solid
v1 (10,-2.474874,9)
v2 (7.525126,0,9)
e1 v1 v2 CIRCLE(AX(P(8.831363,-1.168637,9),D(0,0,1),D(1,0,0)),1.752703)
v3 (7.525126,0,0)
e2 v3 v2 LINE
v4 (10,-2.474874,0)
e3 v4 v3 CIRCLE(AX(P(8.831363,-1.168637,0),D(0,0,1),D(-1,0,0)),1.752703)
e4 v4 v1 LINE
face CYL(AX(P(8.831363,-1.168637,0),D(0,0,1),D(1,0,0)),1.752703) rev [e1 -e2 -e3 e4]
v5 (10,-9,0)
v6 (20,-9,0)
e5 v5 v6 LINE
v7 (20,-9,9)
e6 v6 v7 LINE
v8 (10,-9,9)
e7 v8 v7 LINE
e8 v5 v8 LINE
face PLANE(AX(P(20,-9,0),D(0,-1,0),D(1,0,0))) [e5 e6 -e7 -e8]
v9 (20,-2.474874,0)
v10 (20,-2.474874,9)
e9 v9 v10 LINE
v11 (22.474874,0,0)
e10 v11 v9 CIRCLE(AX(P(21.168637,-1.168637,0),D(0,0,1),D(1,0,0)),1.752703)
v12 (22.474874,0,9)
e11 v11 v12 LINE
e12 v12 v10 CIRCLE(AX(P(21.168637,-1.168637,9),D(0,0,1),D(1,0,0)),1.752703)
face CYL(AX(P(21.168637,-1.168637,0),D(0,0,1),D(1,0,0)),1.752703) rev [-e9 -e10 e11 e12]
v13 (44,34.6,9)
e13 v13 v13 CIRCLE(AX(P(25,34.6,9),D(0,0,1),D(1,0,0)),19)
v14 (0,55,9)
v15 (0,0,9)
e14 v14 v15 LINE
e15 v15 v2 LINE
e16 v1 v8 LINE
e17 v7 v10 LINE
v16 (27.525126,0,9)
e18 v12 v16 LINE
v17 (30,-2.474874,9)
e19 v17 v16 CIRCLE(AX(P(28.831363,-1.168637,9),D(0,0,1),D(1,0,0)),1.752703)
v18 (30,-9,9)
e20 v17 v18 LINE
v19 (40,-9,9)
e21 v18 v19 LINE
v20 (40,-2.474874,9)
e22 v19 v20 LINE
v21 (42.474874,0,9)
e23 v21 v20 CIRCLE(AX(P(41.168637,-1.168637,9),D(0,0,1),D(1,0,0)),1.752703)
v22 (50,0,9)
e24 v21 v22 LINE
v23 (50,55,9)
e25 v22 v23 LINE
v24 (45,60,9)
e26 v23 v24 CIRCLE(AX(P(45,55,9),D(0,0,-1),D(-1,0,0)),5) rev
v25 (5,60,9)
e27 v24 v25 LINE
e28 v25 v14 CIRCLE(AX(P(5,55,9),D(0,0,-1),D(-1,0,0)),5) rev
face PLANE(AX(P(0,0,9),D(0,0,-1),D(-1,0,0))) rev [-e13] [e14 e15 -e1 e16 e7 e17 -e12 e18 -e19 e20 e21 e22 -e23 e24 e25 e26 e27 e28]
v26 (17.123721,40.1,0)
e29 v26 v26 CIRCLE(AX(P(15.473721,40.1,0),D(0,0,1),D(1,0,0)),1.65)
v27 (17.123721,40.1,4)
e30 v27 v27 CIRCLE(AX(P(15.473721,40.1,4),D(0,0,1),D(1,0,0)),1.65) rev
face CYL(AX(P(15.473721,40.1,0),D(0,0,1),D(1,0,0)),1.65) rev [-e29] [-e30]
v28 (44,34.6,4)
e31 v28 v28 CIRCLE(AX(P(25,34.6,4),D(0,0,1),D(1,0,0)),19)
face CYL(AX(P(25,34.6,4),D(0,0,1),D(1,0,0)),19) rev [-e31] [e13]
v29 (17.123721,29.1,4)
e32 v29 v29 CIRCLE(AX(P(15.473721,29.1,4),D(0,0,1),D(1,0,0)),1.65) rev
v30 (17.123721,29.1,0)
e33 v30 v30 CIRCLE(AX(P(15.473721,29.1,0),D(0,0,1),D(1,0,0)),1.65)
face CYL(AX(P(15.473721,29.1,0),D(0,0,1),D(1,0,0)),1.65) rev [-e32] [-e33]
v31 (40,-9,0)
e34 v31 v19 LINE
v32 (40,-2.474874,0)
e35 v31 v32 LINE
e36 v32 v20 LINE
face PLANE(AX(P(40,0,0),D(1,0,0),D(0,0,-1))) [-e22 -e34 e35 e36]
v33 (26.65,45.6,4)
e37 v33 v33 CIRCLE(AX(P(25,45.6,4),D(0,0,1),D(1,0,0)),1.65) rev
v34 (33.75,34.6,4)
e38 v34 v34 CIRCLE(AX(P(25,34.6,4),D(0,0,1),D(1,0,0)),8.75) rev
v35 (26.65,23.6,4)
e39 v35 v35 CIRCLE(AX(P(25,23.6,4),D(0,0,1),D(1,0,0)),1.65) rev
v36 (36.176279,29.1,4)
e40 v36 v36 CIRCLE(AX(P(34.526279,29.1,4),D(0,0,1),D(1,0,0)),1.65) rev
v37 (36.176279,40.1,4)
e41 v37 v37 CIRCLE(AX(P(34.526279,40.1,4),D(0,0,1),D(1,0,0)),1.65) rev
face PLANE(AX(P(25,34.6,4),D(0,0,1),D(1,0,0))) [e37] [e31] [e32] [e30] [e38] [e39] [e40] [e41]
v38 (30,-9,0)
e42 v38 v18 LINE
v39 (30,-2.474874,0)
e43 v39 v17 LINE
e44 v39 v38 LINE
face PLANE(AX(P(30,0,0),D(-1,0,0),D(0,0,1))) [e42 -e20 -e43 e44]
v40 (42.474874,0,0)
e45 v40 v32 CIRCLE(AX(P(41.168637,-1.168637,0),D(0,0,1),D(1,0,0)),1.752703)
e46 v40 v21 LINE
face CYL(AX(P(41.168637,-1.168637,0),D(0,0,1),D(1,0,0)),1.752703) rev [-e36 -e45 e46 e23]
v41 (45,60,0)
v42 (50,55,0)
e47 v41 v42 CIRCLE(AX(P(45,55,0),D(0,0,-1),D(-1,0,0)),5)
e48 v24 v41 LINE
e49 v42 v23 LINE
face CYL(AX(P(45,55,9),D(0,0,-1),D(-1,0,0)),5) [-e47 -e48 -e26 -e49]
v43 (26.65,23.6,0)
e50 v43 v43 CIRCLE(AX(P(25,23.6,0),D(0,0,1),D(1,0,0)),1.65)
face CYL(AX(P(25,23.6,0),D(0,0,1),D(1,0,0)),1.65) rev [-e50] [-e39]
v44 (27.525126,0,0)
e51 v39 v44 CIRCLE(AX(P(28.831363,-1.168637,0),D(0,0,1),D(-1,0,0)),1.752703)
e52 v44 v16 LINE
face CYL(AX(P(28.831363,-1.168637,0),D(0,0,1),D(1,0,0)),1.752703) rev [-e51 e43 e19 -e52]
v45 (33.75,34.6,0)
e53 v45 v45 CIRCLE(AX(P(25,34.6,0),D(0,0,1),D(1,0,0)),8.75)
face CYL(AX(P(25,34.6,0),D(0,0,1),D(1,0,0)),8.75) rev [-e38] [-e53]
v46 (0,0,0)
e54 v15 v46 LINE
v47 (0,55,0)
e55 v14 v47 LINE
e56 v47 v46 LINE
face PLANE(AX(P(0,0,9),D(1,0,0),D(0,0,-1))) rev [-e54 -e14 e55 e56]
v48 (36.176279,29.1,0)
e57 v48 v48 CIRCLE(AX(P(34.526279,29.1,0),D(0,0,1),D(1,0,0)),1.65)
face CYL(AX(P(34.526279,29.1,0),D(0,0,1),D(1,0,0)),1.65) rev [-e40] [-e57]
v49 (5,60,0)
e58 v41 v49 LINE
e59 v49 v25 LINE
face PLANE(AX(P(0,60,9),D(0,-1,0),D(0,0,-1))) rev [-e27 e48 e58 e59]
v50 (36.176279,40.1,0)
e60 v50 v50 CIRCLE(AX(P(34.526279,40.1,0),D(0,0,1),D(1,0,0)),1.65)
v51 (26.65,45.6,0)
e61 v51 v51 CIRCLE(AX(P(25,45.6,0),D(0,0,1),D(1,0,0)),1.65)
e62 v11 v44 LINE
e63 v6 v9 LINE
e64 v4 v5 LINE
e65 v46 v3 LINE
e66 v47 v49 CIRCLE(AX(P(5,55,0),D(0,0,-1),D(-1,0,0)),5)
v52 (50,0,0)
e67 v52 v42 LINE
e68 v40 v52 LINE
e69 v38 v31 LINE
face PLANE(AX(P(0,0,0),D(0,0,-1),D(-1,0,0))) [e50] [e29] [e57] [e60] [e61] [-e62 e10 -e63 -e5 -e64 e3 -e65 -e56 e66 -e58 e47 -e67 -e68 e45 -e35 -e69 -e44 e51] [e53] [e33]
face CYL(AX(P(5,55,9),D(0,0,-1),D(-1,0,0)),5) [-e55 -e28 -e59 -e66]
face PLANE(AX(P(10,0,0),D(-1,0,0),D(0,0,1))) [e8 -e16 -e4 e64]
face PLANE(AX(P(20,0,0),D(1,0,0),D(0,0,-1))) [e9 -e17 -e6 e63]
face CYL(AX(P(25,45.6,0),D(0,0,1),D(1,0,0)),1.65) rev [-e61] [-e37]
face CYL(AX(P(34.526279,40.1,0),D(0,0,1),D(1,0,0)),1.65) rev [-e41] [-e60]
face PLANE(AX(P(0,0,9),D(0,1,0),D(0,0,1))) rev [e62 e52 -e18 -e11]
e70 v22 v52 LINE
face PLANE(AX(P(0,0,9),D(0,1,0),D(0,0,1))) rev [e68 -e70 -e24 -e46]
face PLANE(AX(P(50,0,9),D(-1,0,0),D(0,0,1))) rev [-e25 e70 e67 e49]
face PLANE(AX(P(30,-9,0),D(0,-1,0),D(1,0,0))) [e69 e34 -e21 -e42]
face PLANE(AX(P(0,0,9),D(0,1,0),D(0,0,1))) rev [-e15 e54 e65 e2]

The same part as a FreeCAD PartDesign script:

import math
import FreeCAD as App
import Part
import Sketcher

V = App.Vector
Q = App.Units.Quantity


def edges_at(feature, points):
    """Names of the edges that pass closest to the given points."""
    edges = feature.Shape.Edges
    near = lambda p: min(range(len(edges)), key=lambda i: edges[i].distToShape(Part.Vertex(*p))[0])
    return sorted({f"Edge{near(p) + 1}" for p in points})

doc = App.newDocument("Part")
body = doc.addObject("PartDesign::Body", "Body")

# Sketch on XY plane
sketch1 = doc.addObject("Sketcher::SketchObject", "Sketch")
body.addObject(sketch1)
sketch1.AttachmentSupport = (doc.XY_Plane, [""])
sketch1.MapMode = "FlatFace"
sketch1.addGeometry(Part.LineSegment(V(0, 60, 0), V(0, 0, 0)), False)
sketch1.addGeometry(Part.LineSegment(V(0, 0, 0), V(50, 0, 0)), False)
sketch1.addGeometry(Part.LineSegment(V(50, 0, 0), V(50, 60, 0)), False)
sketch1.addGeometry(Part.LineSegment(V(50, 60, 0), V(0, 60, 0)), False)
sketch1.addConstraint(Sketcher.Constraint("Coincident", 0, 2, 1, 1))
sketch1.addConstraint(Sketcher.Constraint("Coincident", 1, 2, 2, 1))
sketch1.addConstraint(Sketcher.Constraint("Coincident", 2, 2, 3, 1))
sketch1.addConstraint(Sketcher.Constraint("Coincident", 3, 2, 0, 1))
sketch1.addConstraint(Sketcher.Constraint("Vertical", 0))
sketch1.addConstraint(Sketcher.Constraint("Horizontal", 1))
sketch1.addConstraint(Sketcher.Constraint("Vertical", 2))
sketch1.addConstraint(Sketcher.Constraint("Horizontal", 3))
sketch1.addConstraint(Sketcher.Constraint("Coincident", 0, 2, -1, 1))
sketch1.addConstraint(Sketcher.Constraint("DistanceX", 1, 1, 1, 2, Q("50 mm")))
sketch1.addConstraint(Sketcher.Constraint("DistanceY", 0, 2, 0, 1, Q("60 mm")))
pad1 = doc.addObject("PartDesign::Pad", "Pad")
body.addObject(pad1)
pad1.Profile = sketch1
pad1.Length = 9

# Sketch on XY plane
sketch2 = doc.addObject("Sketcher::SketchObject", "Sketch001")
body.addObject(sketch2)
sketch2.AttachmentSupport = (doc.XY_Plane, [""])
sketch2.MapMode = "FlatFace"
sketch2.AttachmentOffset = App.Placement(V(0, 0, 9), App.Rotation())
sketch2.addGeometry(Part.LineSegment(V(30, 0, 0), V(30, -9, 0)), False)
sketch2.addGeometry(Part.LineSegment(V(30, -9, 0), V(40, -9, 0)), False)
sketch2.addGeometry(Part.LineSegment(V(40, -9, 0), V(40, 0, 0)), False)
sketch2.addGeometry(Part.LineSegment(V(40, 0, 0), V(30, 0, 0)), False)
sketch2.addGeometry(Part.LineSegment(V(10, 0, 0), V(10, -9, 0)), False)
sketch2.addGeometry(Part.LineSegment(V(10, -9, 0), V(20, -9, 0)), False)
sketch2.addGeometry(Part.LineSegment(V(20, -9, 0), V(20, 0, 0)), False)
sketch2.addGeometry(Part.LineSegment(V(20, 0, 0), V(10, 0, 0)), False)
sketch2.addConstraint(Sketcher.Constraint("Coincident", 0, 2, 1, 1))
sketch2.addConstraint(Sketcher.Constraint("Coincident", 1, 2, 2, 1))
sketch2.addConstraint(Sketcher.Constraint("Coincident", 2, 2, 3, 1))
sketch2.addConstraint(Sketcher.Constraint("Coincident", 3, 2, 0, 1))
sketch2.addConstraint(Sketcher.Constraint("Coincident", 4, 2, 5, 1))
sketch2.addConstraint(Sketcher.Constraint("Coincident", 5, 2, 6, 1))
sketch2.addConstraint(Sketcher.Constraint("Coincident", 6, 2, 7, 1))
sketch2.addConstraint(Sketcher.Constraint("Coincident", 7, 2, 4, 1))
sketch2.addConstraint(Sketcher.Constraint("Vertical", 0))
sketch2.addConstraint(Sketcher.Constraint("Horizontal", 1))
sketch2.addConstraint(Sketcher.Constraint("Vertical", 2))
sketch2.addConstraint(Sketcher.Constraint("Horizontal", 3))
sketch2.addConstraint(Sketcher.Constraint("Vertical", 4))
sketch2.addConstraint(Sketcher.Constraint("Horizontal", 5))
sketch2.addConstraint(Sketcher.Constraint("Vertical", 6))
sketch2.addConstraint(Sketcher.Constraint("Horizontal", 7))
sketch2.addConstraint(Sketcher.Constraint("PointOnObject", 2, 2, -1))
sketch2.addConstraint(Sketcher.Constraint("PointOnObject", 6, 2, -1))
sketch2.addConstraint(Sketcher.Constraint("Horizontal", 1, 2, 4, 2))
sketch2.addConstraint(Sketcher.Constraint("Equal", 3, 5))
sketch2.addConstraint(Sketcher.Constraint("DistanceX", 1, 1, 1, 2, Q("10 mm")))
sketch2.addConstraint(Sketcher.Constraint("DistanceY", 0, 2, 0, 1, Q("9 mm")))
sketch2.addConstraint(Sketcher.Constraint("DistanceX", -1, 1, 0, 2, Q("30 mm")))
sketch2.addConstraint(Sketcher.Constraint("DistanceX", -1, 1, 4, 2, Q("10 mm")))
pad2 = doc.addObject("PartDesign::Pad", "Pad001")
body.addObject(pad2)
pad2.Profile = sketch2
pad2.Length = 9
pad2.Reversed = True

# Sketch on XY plane
sketch3 = doc.addObject("Sketcher::SketchObject", "Sketch002")
body.addObject(sketch3)
sketch3.AttachmentSupport = (doc.XY_Plane, [""])
sketch3.MapMode = "FlatFace"
sketch3.AttachmentOffset = App.Placement(V(0, 0, 9), App.Rotation())
sketch3.addGeometry(Part.Circle(V(25, 34.6, 0), V(0, 0, 1), 8.8), False)
sketch3.addGeometry(Part.Circle(V(25, 45.6, 0), V(0, 0, 1), 1.6), False)
sketch3.addGeometry(Part.Circle(V(34.5, 40.1, 0), V(0, 0, 1), 1.6), False)
sketch3.addGeometry(Part.Circle(V(34.5, 29.1, 0), V(0, 0, 1), 1.6), False)
sketch3.addGeometry(Part.Circle(V(25, 23.6, 0), V(0, 0, 1), 1.6), False)
sketch3.addGeometry(Part.Circle(V(15.5, 29.1, 0), V(0, 0, 1), 1.6), False)
sketch3.addGeometry(Part.Circle(V(15.5, 40.1, 0), V(0, 0, 1), 1.6), False)
sketch3.addConstraint(Sketcher.Constraint("Equal", 1, 2))
sketch3.addConstraint(Sketcher.Constraint("Equal", 2, 3))
sketch3.addConstraint(Sketcher.Constraint("Equal", 3, 4))
sketch3.addConstraint(Sketcher.Constraint("Equal", 4, 5))
sketch3.addConstraint(Sketcher.Constraint("Equal", 5, 6))
sketch3.addConstraint(Sketcher.Constraint("Horizontal", 3, 3, 5, 3))
sketch3.addConstraint(Sketcher.Constraint("Horizontal", 2, 3, 6, 3))
sketch3.addConstraint(Sketcher.Constraint("Vertical", 0, 3, 1, 3))
sketch3.addConstraint(Sketcher.Constraint("Vertical", 2, 3, 3, 3))
sketch3.addConstraint(Sketcher.Constraint("Vertical", 1, 3, 4, 3))
sketch3.addConstraint(Sketcher.Constraint("Vertical", 5, 3, 6, 3))
sketch3.addConstraint(Sketcher.Constraint("Diameter", 0, Q("17.5 mm")))
sketch3.addConstraint(Sketcher.Constraint("Diameter", 1, Q("3.3 mm")))
sketch3.addConstraint(Sketcher.Constraint("DistanceX", -1, 1, 0, 3, Q("25 mm")))
sketch3.addConstraint(Sketcher.Constraint("DistanceY", 0, 3, 1, 3, Q("11 mm")))
sketch3.addConstraint(Sketcher.Constraint("DistanceY", 3, 3, 2, 3, Q("11 mm")))
sketch3.addConstraint(Sketcher.Constraint("DistanceY", 4, 3, 0, 3, Q("11 mm")))
sketch3.addConstraint(Sketcher.Constraint("DistanceY", -1, 1, 0, 3, Q("34.6 mm")))
sketch3.addConstraint(Sketcher.Constraint("DistanceY", -1, 1, 2, 3, Q("40.1 mm")))
sketch3.addConstraint(Sketcher.Constraint("DistanceX", -1, 1, 2, 3, Q("34.526279 mm")))
sketch3.addConstraint(Sketcher.Constraint("DistanceX", -1, 1, 5, 3, Q("15.473721 mm")))
pocket1 = doc.addObject("PartDesign::Pocket", "Pocket")
body.addObject(pocket1)
pocket1.Profile = sketch3
pocket1.Length = 9

# Sketch on XY plane
sketch4 = doc.addObject("Sketcher::SketchObject", "Sketch003")
body.addObject(sketch4)
sketch4.AttachmentSupport = (doc.XY_Plane, [""])
sketch4.MapMode = "FlatFace"
sketch4.AttachmentOffset = App.Placement(V(0, 0, 9), App.Rotation())
sketch4.addGeometry(Part.Circle(V(25, 35, 0), V(0, 0, 1), 19), False)
sketch4.addConstraint(Sketcher.Constraint("Diameter", 0, Q("38 mm")))
sketch4.addConstraint(Sketcher.Constraint("DistanceX", -1, 1, 0, 3, Q("25 mm")))
sketch4.addConstraint(Sketcher.Constraint("DistanceY", -1, 1, 0, 3, Q("34.6 mm")))
pocket2 = doc.addObject("PartDesign::Pocket", "Pocket001")
body.addObject(pocket2)
pocket2.Profile = sketch4
pocket2.Length = 5
doc.recompute()

fillet = doc.addObject("PartDesign::Fillet", "Fillet")
body.addObject(fillet)
fillet.Base = (pocket2, edges_at(pocket2, [(0, 60, 4.5), (50, 60, 4.5)]))
fillet.Radius = 5

# Sketch on XY plane
sketch5 = doc.addObject("Sketcher::SketchObject", "Sketch004")
body.addObject(sketch5)
sketch5.AttachmentSupport = (doc.XY_Plane, [""])
sketch5.MapMode = "FlatFace"
sketch5.AttachmentOffset = App.Placement(V(0, 0, 9), App.Rotation())
sketch5.addGeometry(Part.LineSegment(V(27.5, 0, 0), V(30, -2.5, 0)), False)
sketch5.addGeometry(Part.ArcOfCircle(Part.Circle(V(28.8, -1.2, 0), V(0, 0, 1), 1.8), math.radians(-48), math.radians(138)), False)
sketch5.addGeometry(Part.LineSegment(V(20, -2.5, 0), V(22.5, 0, 0)), False)
sketch5.addGeometry(Part.ArcOfCircle(Part.Circle(V(21.2, -1.2, 0), V(0, 0, 1), 1.8), math.radians(42), math.radians(228)), False)
sketch5.addGeometry(Part.LineSegment(V(40, -2.5, 0), V(42.5, 0, 0)), False)
sketch5.addGeometry(Part.ArcOfCircle(Part.Circle(V(41.2, -1.2, 0), V(0, 0, 1), 1.8), math.radians(42), math.radians(228)), False)
sketch5.addGeometry(Part.LineSegment(V(7.5, 0, 0), V(10, -2.5, 0)), False)
sketch5.addGeometry(Part.ArcOfCircle(Part.Circle(V(8.8, -1.2, 0), V(0, 0, 1), 1.8), math.radians(-48), math.radians(138)), False)
sketch5.addConstraint(Sketcher.Constraint("Coincident", 0, 1, 1, 2))
sketch5.addConstraint(Sketcher.Constraint("Coincident", 1, 1, 0, 2))
sketch5.addConstraint(Sketcher.Constraint("Coincident", 2, 1, 3, 2))
sketch5.addConstraint(Sketcher.Constraint("Coincident", 3, 1, 2, 2))
sketch5.addConstraint(Sketcher.Constraint("Coincident", 4, 1, 5, 2))
sketch5.addConstraint(Sketcher.Constraint("Coincident", 5, 1, 4, 2))
sketch5.addConstraint(Sketcher.Constraint("Coincident", 6, 1, 7, 2))
sketch5.addConstraint(Sketcher.Constraint("Coincident", 7, 1, 6, 2))
sketch5.addConstraint(Sketcher.Constraint("Equal", 1, 3))
sketch5.addConstraint(Sketcher.Constraint("Equal", 3, 5))
sketch5.addConstraint(Sketcher.Constraint("Equal", 5, 7))
sketch5.addConstraint(Sketcher.Constraint("PointOnObject", 0, 1, -1))
sketch5.addConstraint(Sketcher.Constraint("PointOnObject", 3, 1, -1))
sketch5.addConstraint(Sketcher.Constraint("PointOnObject", 5, 1, -1))
sketch5.addConstraint(Sketcher.Constraint("PointOnObject", 6, 1, -1))
sketch5.addConstraint(Sketcher.Constraint("Perpendicular", 0, 2))
sketch5.addConstraint(Sketcher.Constraint("Parallel", 2, 4))
sketch5.addConstraint(Sketcher.Constraint("Perpendicular", 4, 6))
sketch5.addConstraint(Sketcher.Constraint("Horizontal", 1, 3, 3, 3))
sketch5.addConstraint(Sketcher.Constraint("Horizontal", 3, 3, 5, 3))
sketch5.addConstraint(Sketcher.Constraint("Horizontal", 5, 3, 7, 3))
sketch5.addConstraint(Sketcher.Constraint("Horizontal", 1, 1, 2, 1))
sketch5.addConstraint(Sketcher.Constraint("DistanceX", -1, 1, 1, 1, Q("30 mm")))
sketch5.addConstraint(Sketcher.Constraint("DistanceX", -1, 1, 2, 1, Q("20 mm")))
sketch5.addConstraint(Sketcher.Constraint("DistanceX", -1, 1, 4, 1, Q("40 mm")))
sketch5.addConstraint(Sketcher.Constraint("DistanceX", -1, 1, 7, 1, Q("10 mm")))
sketch5.addConstraint(Sketcher.Constraint("Distance", 0, Q("3.5 mm")))
sketch5.addConstraint(Sketcher.Constraint("Radius", 1, Q("1.752703 mm")))
pocket3 = doc.addObject("PartDesign::Pocket", "Pocket002")
body.addObject(pocket3)
pocket3.Profile = sketch5
pocket3.Type = "ThroughAll"
pocket3.Midplane = True

doc.recompute()
